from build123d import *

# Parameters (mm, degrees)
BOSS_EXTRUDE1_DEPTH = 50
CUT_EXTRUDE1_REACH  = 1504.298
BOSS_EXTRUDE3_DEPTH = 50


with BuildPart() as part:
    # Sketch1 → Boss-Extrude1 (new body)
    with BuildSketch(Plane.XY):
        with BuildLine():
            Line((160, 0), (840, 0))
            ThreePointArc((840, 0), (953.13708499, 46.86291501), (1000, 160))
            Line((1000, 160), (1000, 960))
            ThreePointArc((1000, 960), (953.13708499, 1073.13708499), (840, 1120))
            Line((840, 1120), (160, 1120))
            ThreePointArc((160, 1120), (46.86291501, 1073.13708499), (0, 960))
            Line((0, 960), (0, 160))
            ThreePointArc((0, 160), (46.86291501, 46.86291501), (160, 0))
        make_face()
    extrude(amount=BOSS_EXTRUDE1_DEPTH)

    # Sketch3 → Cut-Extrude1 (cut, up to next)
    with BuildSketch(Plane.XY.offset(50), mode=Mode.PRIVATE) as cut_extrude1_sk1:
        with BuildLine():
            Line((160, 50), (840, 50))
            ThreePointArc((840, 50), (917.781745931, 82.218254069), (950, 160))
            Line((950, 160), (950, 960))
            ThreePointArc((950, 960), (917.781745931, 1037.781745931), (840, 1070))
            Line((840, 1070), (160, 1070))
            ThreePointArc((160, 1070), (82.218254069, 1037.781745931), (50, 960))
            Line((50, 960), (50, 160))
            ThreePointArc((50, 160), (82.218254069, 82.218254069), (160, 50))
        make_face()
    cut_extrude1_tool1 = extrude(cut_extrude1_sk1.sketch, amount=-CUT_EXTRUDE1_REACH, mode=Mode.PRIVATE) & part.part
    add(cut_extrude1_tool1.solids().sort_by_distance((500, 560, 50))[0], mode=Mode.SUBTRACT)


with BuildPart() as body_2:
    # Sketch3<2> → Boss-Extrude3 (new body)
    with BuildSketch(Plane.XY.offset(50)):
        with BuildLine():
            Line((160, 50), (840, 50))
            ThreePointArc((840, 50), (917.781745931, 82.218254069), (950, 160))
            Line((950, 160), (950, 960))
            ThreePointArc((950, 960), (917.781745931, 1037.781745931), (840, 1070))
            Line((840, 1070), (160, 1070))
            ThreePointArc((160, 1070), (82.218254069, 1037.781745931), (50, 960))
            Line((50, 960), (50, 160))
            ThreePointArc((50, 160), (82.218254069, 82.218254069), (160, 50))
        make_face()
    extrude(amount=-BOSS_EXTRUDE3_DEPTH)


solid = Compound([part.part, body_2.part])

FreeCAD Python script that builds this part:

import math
import FreeCAD as App
import Part
import Sketcher

doc = App.newDocument("Part")
body = doc.addObject("PartDesign::Body", "Body")

# Sketch on XY plane
sketch1 = doc.addObject("Sketcher::SketchObject", "Sketch")
body.addObject(sketch1)
sketch1.AttachmentSupport = (doc.XY_Plane, [""])
sketch1.MapMode = "FlatFace"
sketch1.addGeometry([
    Part.LineSegment(App.Vector(160, 0, 0), App.Vector(840, 0, 0)),  # 0
    Part.ArcOfCircle(Part.Circle(App.Vector(840, 160, 0), App.Vector(0, 0, 1), 160), math.radians(-90), math.radians(0)),  # 1
    Part.LineSegment(App.Vector(1000, 160, 0), App.Vector(1000, 960, 0)),  # 2
    Part.ArcOfCircle(Part.Circle(App.Vector(840, 960, 0), App.Vector(0, 0, 1), 160), math.radians(0), math.radians(90)),  # 3
    Part.LineSegment(App.Vector(840, 1120, 0), App.Vector(160, 1120, 0)),  # 4
    Part.ArcOfCircle(Part.Circle(App.Vector(160, 960, 0), App.Vector(0, 0, 1), 160), math.radians(90), math.radians(180)),  # 5
    Part.LineSegment(App.Vector(0, 960, 0), App.Vector(0, 160, 0)),  # 6
    Part.ArcOfCircle(Part.Circle(App.Vector(160, 160, 0), App.Vector(0, 0, 1), 160), math.radians(180), math.radians(270)),  # 7
], False)
sketch1.addConstraint([
    Sketcher.Constraint("Tangent", 0, 2, 1, 1),
    Sketcher.Constraint("Tangent", 1, 2, 2, 1),
    Sketcher.Constraint("Tangent", 2, 2, 3, 1),
    Sketcher.Constraint("Tangent", 3, 2, 4, 1),
    Sketcher.Constraint("Tangent", 4, 2, 5, 1),
    Sketcher.Constraint("Tangent", 5, 2, 6, 1),
    Sketcher.Constraint("Tangent", 6, 2, 7, 1),
    Sketcher.Constraint("Tangent", 7, 2, 0, 1),
    Sketcher.Constraint("Horizontal", 0),
    Sketcher.Constraint("Vertical", 2),
    Sketcher.Constraint("Horizontal", 4),
    Sketcher.Constraint("Vertical", 6),
    Sketcher.Constraint("Equal", 1, 3),
    Sketcher.Constraint("Equal", 3, 5),
    Sketcher.Constraint("Equal", 5, 7),
    Sketcher.Constraint("PointOnObject", 0, 2, -1),
    Sketcher.Constraint("PointOnObject", 5, 2, -2),
    Sketcher.Constraint("Radius", 1, 160.0),
    Sketcher.Constraint("DistanceX", 0, 1, 0, 2, 680.0),
    Sketcher.Constraint("DistanceY", 2, 1, 2, 2, 800.0),
])
pad1 = doc.addObject("PartDesign::Pad", "Pad")
body.addObject(pad1)
pad1.Profile = sketch1
pad1.Length = 50

# Sketch on XY plane
sketch2 = doc.addObject("Sketcher::SketchObject", "Sketch001")
body.addObject(sketch2)
sketch2.AttachmentSupport = (doc.XY_Plane, [""])
sketch2.MapMode = "FlatFace"
sketch2.AttachmentOffset = App.Placement(App.Vector(0, 0, 50), App.Rotation())
sketch2.addGeometry([
    Part.LineSegment(App.Vector(160, 50, 0), App.Vector(840, 50, 0)),  # 0
    Part.ArcOfCircle(Part.Circle(App.Vector(840, 160, 0), App.Vector(0, 0, 1), 110), math.radians(-90), math.radians(0)),  # 1
    Part.LineSegment(App.Vector(950, 160, 0), App.Vector(950, 960, 0)),  # 2
    Part.ArcOfCircle(Part.Circle(App.Vector(840, 960, 0), App.Vector(0, 0, 1), 110), math.radians(0), math.radians(90)),  # 3
    Part.LineSegment(App.Vector(840, 1070, 0), App.Vector(160, 1070, 0)),  # 4
    Part.ArcOfCircle(Part.Circle(App.Vector(160, 960, 0), App.Vector(0, 0, 1), 110), math.radians(90), math.radians(180)),  # 5
    Part.LineSegment(App.Vector(50, 960, 0), App.Vector(50, 160, 0)),  # 6
    Part.ArcOfCircle(Part.Circle(App.Vector(160, 160, 0), App.Vector(0, 0, 1), 110), math.radians(180), math.radians(270)),  # 7
], False)
sketch2.addConstraint([
    Sketcher.Constraint("Tangent", 0, 2, 1, 1),
    Sketcher.Constraint("Tangent", 1, 2, 2, 1),
    Sketcher.Constraint("Tangent", 2, 2, 3, 1),
    Sketcher.Constraint("Tangent", 3, 2, 4, 1),
    Sketcher.Constraint("Tangent", 4, 2, 5, 1),
    Sketcher.Constraint("Tangent", 5, 2, 6, 1),
    Sketcher.Constraint("Tangent", 6, 2, 7, 1),
    Sketcher.Constraint("Tangent", 7, 2, 0, 1),
    Sketcher.Constraint("Horizontal", 0),
    Sketcher.Constraint("Vertical", 2),
    Sketcher.Constraint("Horizontal", 4),
    Sketcher.Constraint("Vertical", 6),
    Sketcher.Constraint("Equal", 1, 3),
    Sketcher.Constraint("Equal", 3, 5),
    Sketcher.Constraint("Equal", 5, 7),
    Sketcher.Constraint("Radius", 1, 110.0),
    Sketcher.Constraint("DistanceX", 0, 1, 0, 2, 680.0),
    Sketcher.Constraint("DistanceY", 2, 1, 2, 2, 800.0),
    Sketcher.Constraint("DistanceX", -1, 1, 1, 3, 840.0),
    Sketcher.Constraint("DistanceY", -1, 1, 1, 3, 160.0),
])
pocket1 = doc.addObject("PartDesign::Pocket", "Pocket")
body.addObject(pocket1)
pocket1.Profile = sketch2
pocket1.Type = "UpToFirst"
body2 = doc.addObject("PartDesign::Body", "Body001")

# Sketch on XY plane
sketch3 = doc.addObject("Sketcher::SketchObject", "Sketch002")
body2.addObject(sketch3)
sketch3.AttachmentSupport = (doc.getObject("XY_Plane001"), [""])
sketch3.MapMode = "FlatFace"
sketch3.AttachmentOffset = App.Placement(App.Vector(0, 0, 50), App.Rotation())
sketch3.addGeometry([
    Part.LineSegment(App.Vector(160, 50, 0), App.Vector(840, 50, 0)),  # 0
    Part.ArcOfCircle(Part.Circle(App.Vector(840, 160, 0), App.Vector(0, 0, 1), 110), math.radians(-90), math.radians(0)),  # 1
    Part.LineSegment(App.Vector(950, 160, 0), App.Vector(950, 960, 0)),  # 2
    Part.ArcOfCircle(Part.Circle(App.Vector(840, 960, 0), App.Vector(0, 0, 1), 110), math.radians(0), math.radians(90)),  # 3
    Part.LineSegment(App.Vector(840, 1070, 0), App.Vector(160, 1070, 0)),  # 4
    Part.ArcOfCircle(Part.Circle(App.Vector(160, 960, 0), App.Vector(0, 0, 1), 110), math.radians(90), math.radians(180)),  # 5
    Part.LineSegment(App.Vector(50, 960, 0), App.Vector(50, 160, 0)),  # 6
    Part.ArcOfCircle(Part.Circle(App.Vector(160, 160, 0), App.Vector(0, 0, 1), 110), math.radians(180), math.radians(270)),  # 7
], False)
sketch3.addConstraint([
    Sketcher.Constraint("Tangent", 0, 2, 1, 1),
    Sketcher.Constraint("Tangent", 1, 2, 2, 1),
    Sketcher.Constraint("Tangent", 2, 2, 3, 1),
    Sketcher.Constraint("Tangent", 3, 2, 4, 1),
    Sketcher.Constraint("Tangent", 4, 2, 5, 1),
    Sketcher.Constraint("Tangent", 5, 2, 6, 1),
    Sketcher.Constraint("Tangent", 6, 2, 7, 1),
    Sketcher.Constraint("Tangent", 7, 2, 0, 1),
    Sketcher.Constraint("Horizontal", 0),
    Sketcher.Constraint("Vertical", 2),
    Sketcher.Constraint("Horizontal", 4),
    Sketcher.Constraint("Vertical", 6),
    Sketcher.Constraint("Equal", 1, 3),
    Sketcher.Constraint("Equal", 3, 5),
    Sketcher.Constraint("Equal", 5, 7),
    Sketcher.Constraint("Radius", 1, 110.0),
    Sketcher.Constraint("DistanceX", 0, 1, 0, 2, 680.0),
    Sketcher.Constraint("DistanceY", 2, 1, 2, 2, 800.0),
    Sketcher.Constraint("DistanceX", -1, 1, 1, 3, 840.0),
    Sketcher.Constraint("DistanceY", -1, 1, 1, 3, 160.0),
])
pad2 = doc.addObject("PartDesign::Pad", "Pad001")
body2.addObject(pad2)
pad2.Profile = sketch3
pad2.Length = 50
pad2.Reversed = True

doc.recompute()
